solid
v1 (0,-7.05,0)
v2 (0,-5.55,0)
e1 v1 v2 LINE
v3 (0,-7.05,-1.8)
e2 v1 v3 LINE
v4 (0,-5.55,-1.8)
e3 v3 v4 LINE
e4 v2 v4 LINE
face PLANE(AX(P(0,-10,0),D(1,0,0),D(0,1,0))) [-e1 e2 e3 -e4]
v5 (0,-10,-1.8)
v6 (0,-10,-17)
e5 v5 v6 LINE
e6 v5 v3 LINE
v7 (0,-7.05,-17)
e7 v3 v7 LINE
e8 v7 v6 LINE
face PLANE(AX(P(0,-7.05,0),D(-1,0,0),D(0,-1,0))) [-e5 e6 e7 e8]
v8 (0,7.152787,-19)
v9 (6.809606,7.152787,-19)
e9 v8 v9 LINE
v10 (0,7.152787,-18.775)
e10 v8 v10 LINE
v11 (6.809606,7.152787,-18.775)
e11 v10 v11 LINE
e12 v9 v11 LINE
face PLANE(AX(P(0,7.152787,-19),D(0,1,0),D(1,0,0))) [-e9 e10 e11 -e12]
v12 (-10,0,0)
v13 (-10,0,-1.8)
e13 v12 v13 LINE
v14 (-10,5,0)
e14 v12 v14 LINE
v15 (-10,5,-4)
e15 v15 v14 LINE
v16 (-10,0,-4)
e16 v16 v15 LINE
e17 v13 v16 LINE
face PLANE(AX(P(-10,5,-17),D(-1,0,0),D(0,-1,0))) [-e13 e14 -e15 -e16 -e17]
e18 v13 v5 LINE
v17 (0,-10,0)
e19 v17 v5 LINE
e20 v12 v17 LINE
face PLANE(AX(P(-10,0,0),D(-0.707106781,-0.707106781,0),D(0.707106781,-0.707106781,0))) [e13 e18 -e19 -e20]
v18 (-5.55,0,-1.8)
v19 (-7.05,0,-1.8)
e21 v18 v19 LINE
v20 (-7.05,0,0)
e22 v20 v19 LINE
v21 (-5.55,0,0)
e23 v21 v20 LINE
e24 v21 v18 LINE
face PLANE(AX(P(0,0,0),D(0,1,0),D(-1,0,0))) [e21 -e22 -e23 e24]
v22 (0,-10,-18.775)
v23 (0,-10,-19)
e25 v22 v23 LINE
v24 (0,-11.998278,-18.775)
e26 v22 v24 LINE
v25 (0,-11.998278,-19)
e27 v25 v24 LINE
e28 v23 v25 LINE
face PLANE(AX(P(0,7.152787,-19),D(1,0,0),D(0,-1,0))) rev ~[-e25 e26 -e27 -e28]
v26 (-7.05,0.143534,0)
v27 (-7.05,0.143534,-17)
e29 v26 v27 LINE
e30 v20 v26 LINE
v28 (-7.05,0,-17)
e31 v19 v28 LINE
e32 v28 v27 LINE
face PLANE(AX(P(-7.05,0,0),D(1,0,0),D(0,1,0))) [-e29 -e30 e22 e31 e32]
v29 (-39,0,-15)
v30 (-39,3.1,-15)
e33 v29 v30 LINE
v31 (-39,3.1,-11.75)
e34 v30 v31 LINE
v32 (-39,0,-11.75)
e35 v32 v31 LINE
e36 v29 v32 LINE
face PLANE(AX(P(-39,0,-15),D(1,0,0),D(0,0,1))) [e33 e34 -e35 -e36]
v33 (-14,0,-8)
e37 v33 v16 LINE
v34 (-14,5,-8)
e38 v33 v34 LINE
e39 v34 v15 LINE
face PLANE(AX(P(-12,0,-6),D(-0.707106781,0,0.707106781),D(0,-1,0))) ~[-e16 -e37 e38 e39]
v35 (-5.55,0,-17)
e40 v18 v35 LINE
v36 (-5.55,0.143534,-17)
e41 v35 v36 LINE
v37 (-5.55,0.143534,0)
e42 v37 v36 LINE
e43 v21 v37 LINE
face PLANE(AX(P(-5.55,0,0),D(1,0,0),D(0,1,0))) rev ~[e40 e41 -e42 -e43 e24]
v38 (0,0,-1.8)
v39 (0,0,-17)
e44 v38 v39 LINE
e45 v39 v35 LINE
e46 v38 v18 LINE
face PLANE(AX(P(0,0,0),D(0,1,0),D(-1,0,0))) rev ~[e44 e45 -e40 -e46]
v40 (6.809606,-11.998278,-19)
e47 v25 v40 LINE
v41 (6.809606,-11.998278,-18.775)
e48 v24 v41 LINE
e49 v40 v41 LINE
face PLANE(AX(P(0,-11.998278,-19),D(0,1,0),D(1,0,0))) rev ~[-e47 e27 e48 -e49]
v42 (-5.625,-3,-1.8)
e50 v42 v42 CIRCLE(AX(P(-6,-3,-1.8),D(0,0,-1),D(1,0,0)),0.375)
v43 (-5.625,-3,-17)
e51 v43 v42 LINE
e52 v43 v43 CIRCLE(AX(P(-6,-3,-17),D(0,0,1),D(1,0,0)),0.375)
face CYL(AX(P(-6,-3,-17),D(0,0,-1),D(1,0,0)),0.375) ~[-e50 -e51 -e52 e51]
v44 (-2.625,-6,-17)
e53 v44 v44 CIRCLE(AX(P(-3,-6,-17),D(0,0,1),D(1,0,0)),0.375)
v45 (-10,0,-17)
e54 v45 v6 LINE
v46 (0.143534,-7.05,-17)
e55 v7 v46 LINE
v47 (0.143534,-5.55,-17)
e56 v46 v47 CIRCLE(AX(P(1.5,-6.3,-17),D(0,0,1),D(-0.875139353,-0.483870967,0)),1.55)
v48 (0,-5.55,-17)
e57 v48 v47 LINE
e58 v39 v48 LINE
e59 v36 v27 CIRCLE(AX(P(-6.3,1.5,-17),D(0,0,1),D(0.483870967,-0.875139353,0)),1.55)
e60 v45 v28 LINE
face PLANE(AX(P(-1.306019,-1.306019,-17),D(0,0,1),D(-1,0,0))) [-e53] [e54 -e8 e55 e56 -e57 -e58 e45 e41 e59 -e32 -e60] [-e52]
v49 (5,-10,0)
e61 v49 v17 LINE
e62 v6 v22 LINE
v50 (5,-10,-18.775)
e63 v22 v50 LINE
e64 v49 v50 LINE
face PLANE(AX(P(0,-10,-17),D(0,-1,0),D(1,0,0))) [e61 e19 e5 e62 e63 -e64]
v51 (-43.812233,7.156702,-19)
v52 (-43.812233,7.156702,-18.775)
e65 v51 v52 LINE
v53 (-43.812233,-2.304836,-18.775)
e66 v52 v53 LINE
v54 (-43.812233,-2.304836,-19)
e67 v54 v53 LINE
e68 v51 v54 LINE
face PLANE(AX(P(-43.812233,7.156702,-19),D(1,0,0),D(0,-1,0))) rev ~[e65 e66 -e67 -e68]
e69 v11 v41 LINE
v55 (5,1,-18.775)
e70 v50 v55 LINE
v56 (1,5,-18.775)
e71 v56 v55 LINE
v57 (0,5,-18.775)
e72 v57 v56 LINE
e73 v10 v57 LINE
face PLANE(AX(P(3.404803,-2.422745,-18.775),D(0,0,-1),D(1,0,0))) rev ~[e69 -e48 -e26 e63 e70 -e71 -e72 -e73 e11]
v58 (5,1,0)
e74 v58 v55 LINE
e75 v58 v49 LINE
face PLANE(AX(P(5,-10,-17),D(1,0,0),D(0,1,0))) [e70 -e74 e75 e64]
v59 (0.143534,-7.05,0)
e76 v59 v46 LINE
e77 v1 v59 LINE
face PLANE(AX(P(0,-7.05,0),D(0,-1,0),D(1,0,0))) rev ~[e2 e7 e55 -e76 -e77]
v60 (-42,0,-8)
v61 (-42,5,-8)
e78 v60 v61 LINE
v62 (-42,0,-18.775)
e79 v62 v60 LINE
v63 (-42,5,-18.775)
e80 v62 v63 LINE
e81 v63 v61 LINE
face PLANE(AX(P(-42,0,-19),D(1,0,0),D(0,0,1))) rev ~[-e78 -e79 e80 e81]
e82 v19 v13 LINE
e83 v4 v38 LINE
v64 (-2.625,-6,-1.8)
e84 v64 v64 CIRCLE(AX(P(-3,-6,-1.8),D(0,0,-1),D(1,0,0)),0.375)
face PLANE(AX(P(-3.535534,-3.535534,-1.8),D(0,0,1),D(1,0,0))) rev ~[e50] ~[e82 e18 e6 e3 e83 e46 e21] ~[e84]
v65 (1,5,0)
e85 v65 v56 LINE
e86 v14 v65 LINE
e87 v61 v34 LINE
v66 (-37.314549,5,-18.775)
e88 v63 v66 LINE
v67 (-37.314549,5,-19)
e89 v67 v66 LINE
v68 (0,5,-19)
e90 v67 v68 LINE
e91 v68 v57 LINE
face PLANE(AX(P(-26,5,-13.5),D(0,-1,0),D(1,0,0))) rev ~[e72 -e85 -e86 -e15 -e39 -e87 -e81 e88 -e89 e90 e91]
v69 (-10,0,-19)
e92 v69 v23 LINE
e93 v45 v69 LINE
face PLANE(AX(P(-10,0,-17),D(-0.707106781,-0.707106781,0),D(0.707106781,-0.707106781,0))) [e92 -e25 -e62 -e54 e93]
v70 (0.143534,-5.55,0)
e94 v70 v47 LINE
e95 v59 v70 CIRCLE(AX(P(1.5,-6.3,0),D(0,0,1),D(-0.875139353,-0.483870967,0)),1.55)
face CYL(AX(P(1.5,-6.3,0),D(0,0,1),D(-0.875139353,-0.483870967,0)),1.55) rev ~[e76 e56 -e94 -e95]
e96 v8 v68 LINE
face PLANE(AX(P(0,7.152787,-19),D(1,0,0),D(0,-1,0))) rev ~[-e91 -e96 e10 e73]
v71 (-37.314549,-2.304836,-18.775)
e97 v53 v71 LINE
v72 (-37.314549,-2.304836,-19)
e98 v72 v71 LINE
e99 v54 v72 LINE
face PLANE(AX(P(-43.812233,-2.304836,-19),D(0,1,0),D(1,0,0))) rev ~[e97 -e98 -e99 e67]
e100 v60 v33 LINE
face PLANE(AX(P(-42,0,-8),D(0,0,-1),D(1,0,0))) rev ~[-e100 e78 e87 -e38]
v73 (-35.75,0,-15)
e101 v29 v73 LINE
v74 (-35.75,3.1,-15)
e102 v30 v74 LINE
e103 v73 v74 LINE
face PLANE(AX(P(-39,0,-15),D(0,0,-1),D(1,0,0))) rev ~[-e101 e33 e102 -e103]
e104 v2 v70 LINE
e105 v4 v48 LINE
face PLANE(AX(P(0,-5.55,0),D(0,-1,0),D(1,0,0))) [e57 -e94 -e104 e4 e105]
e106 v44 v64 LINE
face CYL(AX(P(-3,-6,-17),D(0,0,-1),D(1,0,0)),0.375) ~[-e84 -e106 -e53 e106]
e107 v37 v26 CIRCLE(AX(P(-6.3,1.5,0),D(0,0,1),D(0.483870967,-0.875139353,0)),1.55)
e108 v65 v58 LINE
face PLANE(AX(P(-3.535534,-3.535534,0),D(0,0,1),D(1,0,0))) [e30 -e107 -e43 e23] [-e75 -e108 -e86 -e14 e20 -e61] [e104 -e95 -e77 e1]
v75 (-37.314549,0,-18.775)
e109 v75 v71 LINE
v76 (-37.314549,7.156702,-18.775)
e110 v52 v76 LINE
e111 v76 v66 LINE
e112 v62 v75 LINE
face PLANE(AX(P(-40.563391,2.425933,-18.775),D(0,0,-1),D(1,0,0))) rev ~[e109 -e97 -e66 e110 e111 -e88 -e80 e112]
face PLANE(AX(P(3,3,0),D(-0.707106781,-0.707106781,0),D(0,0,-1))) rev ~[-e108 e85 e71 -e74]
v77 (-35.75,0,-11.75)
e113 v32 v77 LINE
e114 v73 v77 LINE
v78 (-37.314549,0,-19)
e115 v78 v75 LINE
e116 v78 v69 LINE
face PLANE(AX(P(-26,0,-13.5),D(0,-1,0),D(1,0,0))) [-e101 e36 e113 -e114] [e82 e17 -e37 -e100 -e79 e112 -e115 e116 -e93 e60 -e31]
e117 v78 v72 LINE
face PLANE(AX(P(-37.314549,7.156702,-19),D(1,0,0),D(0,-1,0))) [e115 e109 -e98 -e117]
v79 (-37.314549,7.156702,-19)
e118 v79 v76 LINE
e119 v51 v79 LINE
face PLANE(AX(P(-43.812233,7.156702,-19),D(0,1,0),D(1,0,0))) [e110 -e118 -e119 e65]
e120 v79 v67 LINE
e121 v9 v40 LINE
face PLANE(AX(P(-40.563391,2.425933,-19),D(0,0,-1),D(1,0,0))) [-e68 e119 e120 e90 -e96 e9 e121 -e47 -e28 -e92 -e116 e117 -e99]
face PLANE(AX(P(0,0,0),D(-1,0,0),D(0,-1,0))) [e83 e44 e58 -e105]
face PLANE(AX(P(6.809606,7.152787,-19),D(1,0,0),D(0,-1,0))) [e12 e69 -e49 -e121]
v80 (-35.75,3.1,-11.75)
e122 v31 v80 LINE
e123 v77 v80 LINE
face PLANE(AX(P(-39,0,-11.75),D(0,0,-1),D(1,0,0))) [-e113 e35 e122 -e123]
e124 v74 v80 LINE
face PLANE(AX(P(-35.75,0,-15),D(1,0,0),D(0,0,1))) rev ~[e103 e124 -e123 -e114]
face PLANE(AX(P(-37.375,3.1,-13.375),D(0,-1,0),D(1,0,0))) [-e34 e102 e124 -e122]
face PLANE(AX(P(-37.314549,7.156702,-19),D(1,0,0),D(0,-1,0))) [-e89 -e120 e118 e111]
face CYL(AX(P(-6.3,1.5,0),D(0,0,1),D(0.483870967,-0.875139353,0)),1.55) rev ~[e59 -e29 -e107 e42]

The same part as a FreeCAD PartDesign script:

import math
import FreeCAD as App
import Part
import Sketcher
Q = App.Units.Quantity


def edges_at(feature, points):
    """Names of the edges that pass closest to the given points."""
    edges = feature.Shape.Edges
    near = lambda p: min(range(len(edges)), key=lambda i: edges[i].distToShape(Part.Vertex(*p))[0])
    return sorted({f"Edge{near(p) + 1}" for p in points})

doc = App.newDocument("Part")
body = doc.addObject("PartDesign::Body", "Body")

sketch1 = body.newObject("Sketcher::SketchObject", "Sketch")
sketch1.AttachmentSupport = (doc.getObject("XY_Plane"), [""])
sketch1.MapMode = "FlatFace"
sketch1.addGeometry([
    Part.LineSegment(App.Vector(-10, 5, 0), App.Vector(-10, 0, 0)),
    Part.LineSegment(App.Vector(-10, 0, 0), App.Vector(-7.05, 0, 0)),
    Part.LineSegment(App.Vector(-7.05, 0, 0), App.Vector(-7.05, 0.143534, 0)),
    Part.ArcOfCircle(Part.Circle(App.Vector(-6.3, 1.5, 0), App.Vector(0, 0, 1), 1.55), math.radians(-61.061472), math.radians(241.061472)),
    Part.LineSegment(App.Vector(-5.55, 0.143534, 0), App.Vector(-5.55, 0, 0)),
    Part.LineSegment(App.Vector(-5.55, 0, 0), App.Vector(0, 0, 0)),
    Part.LineSegment(App.Vector(0, 0, 0), App.Vector(0, -5.55, 0)),
    Part.LineSegment(App.Vector(0, -5.55, 0), App.Vector(0.143534, -5.55, 0)),
    Part.ArcOfCircle(Part.Circle(App.Vector(1.5, -6.3, 0), App.Vector(0, 0, 1), 1.55), math.radians(-151.061472), math.radians(151.061472)),
    Part.LineSegment(App.Vector(0.143534, -7.05, 0), App.Vector(0, -7.05, 0)),
    Part.LineSegment(App.Vector(0, -7.05, 0), App.Vector(0, -10, 0)),
    Part.LineSegment(App.Vector(0, -10, 0), App.Vector(5, -10, 0)),
    Part.LineSegment(App.Vector(5, -10, 0), App.Vector(5, 5, 0)),
    Part.LineSegment(App.Vector(5, 5, 0), App.Vector(-10, 5, 0)),
], False)
sketch1.addConstraint([
    Sketcher.Constraint("Coincident", 0, 2, 1, 1),
    Sketcher.Constraint("Coincident", 1, 2, 2, 1),
    Sketcher.Constraint("Coincident", 2, 2, 3, 2),
    Sketcher.Constraint("Coincident", 3, 1, 4, 1),
    Sketcher.Constraint("Coincident", 4, 2, 5, 1),
    Sketcher.Constraint("Coincident", 5, 2, 6, 1),
    Sketcher.Constraint("Coincident", 6, 2, 7, 1),
    Sketcher.Constraint("Coincident", 7, 2, 8, 2),
    Sketcher.Constraint("Coincident", 8, 1, 9, 1),
    Sketcher.Constraint("Coincident", 9, 2, 10, 1),
    Sketcher.Constraint("Coincident", 10, 2, 11, 1),
    Sketcher.Constraint("Coincident", 11, 2, 12, 1),
    Sketcher.Constraint("Coincident", 12, 2, 13, 1),
    Sketcher.Constraint("Coincident", 13, 2, 0, 1),
    Sketcher.Constraint("Vertical", 0),
    Sketcher.Constraint("Horizontal", 1),
    Sketcher.Constraint("Vertical", 2),
    Sketcher.Constraint("Vertical", 4),
    Sketcher.Constraint("Horizontal", 5),
    Sketcher.Constraint("Vertical", 6),
    Sketcher.Constraint("Horizontal", 7),
    Sketcher.Constraint("Horizontal", 9),
    Sketcher.Constraint("Vertical", 10),
    Sketcher.Constraint("Horizontal", 11),
    Sketcher.Constraint("Vertical", 12),
    Sketcher.Constraint("Horizontal", 13),
    Sketcher.Constraint("Coincident", 5, 2, -1, 1),
    Sketcher.Constraint("Equal", 3, 8),
    Sketcher.Constraint("PointOnObject", 0, 2, -1),
    Sketcher.Constraint("PointOnObject", 9, 2, -2),
    Sketcher.Constraint("Horizontal", 2, 2, 3, 1),
    Sketcher.Constraint("Vertical", 7, 2, 8, 1),
    Sketcher.Constraint("Equal", 11, 0),
    Sketcher.Constraint("Equal", 9, 2),
    Sketcher.Constraint("Equal", 5, 6),
    Sketcher.Constraint("Equal", 1, 10),
    Sketcher.Constraint("Equal", 13, 12),
    Sketcher.Constraint("DistanceX", 11, 1, 11, 2, Q("5 mm")),
    Sketcher.Constraint("DistanceX", 13, 2, 13, 1, Q("15 mm")),
    Sketcher.Constraint("Radius", 3, Q("1.55 mm")),
    Sketcher.Constraint("DistanceX", 1, 1, 1, 2, Q("2.95 mm")),
    Sketcher.Constraint("DistanceX", 5, 1, 5, 2, Q("5.55 mm")),
    Sketcher.Constraint("DistanceY", -1, 1, 3, 3, Q("1.5 mm")),
])
pad1 = body.newObject("PartDesign::Pad", "Pad")
pad1.Profile = sketch1
pad1.Length = 17
pad1.Reversed = True

sketch2 = body.newObject("Sketcher::SketchObject", "Sketch001")
sketch2.AttachmentSupport = (doc.getObject("XY_Plane"), [""])
sketch2.MapMode = "FlatFace"
sketch2.AttachmentOffset = App.Placement(App.Vector(0, 0, -17), App.Rotation())
sketch2.addGeometry([
    Part.LineSegment(App.Vector(-10, 5, 0), App.Vector(5, 5, 0)),
    Part.LineSegment(App.Vector(5, 5, 0), App.Vector(5, -10, 0)),
    Part.LineSegment(App.Vector(5, -10, 0), App.Vector(0, -10, 0)),
    Part.LineSegment(App.Vector(0, -10, 0), App.Vector(-10, 0, 0)),
    Part.LineSegment(App.Vector(-10, 0, 0), App.Vector(-10, 5, 0)),
], False)
sketch2.addConstraint([
    Sketcher.Constraint("Coincident", 0, 2, 1, 1),
    Sketcher.Constraint("Coincident", 1, 2, 2, 1),
    Sketcher.Constraint("Coincident", 2, 2, 3, 1),
    Sketcher.Constraint("Coincident", 3, 2, 4, 1),
    Sketcher.Constraint("Coincident", 4, 2, 0, 1),
    Sketcher.Constraint("Horizontal", 0),
    Sketcher.Constraint("Vertical", 1),
    Sketcher.Constraint("Horizontal", 2),
    Sketcher.Constraint("Vertical", 4),
    Sketcher.Constraint("PointOnObject", 2, 2, -2),
    Sketcher.Constraint("PointOnObject", 3, 2, -1),
    Sketcher.Constraint("Equal", 0, 1),
    Sketcher.Constraint("Equal", 2, 4),
    Sketcher.Constraint("DistanceX", 0, 1, 0, 2, Q("15 mm")),
    Sketcher.Constraint("DistanceX", 2, 2, 2, 1, Q("5 mm")),
])
pad2 = body.newObject("PartDesign::Pad", "Pad001")
pad2.Profile = sketch2
pad2.Length = 2
pad2.Reversed = True

sketch3 = body.newObject("Sketcher::SketchObject", "Sketch002")
sketch3.AttachmentSupport = (doc.getObject("XY_Plane"), [""])
sketch3.MapMode = "FlatFace"
sketch3.addGeometry([
    Part.LineSegment(App.Vector(0, -10, 0), App.Vector(0, 0, 0)),
    Part.LineSegment(App.Vector(0, 0, 0), App.Vector(-10, 0, 0)),
    Part.LineSegment(App.Vector(-10, 0, 0), App.Vector(0, -10, 0)),
], False)
sketch3.addConstraint([
    Sketcher.Constraint("Coincident", 0, 2, 1, 1),
    Sketcher.Constraint("Coincident", 1, 2, 2, 1),
    Sketcher.Constraint("Coincident", 2, 2, 0, 1),
    Sketcher.Constraint("Vertical", 0),
    Sketcher.Constraint("Horizontal", 1),
    Sketcher.Constraint("Coincident", 0, 2, -1, 1),
    Sketcher.Constraint("Equal", 1, 0),
    Sketcher.Constraint("DistanceX", 1, 2, 1, 1, Q("10 mm")),
])
pad3 = body.newObject("PartDesign::Pad", "Pad002")
pad3.Profile = sketch3
pad3.Length = 1.8
pad3.Reversed = True

sketch4 = body.newObject("Sketcher::SketchObject", "Sketch003")
sketch4.AttachmentSupport = (doc.getObject("XZ_Plane"), [""])
sketch4.MapMode = "FlatFace"
sketch4.addGeometry([
    Part.LineSegment(App.Vector(-42, -8, 0), App.Vector(-42, -19, 0)),
    Part.LineSegment(App.Vector(-42, -19, 0), App.Vector(-10, -19, 0)),
    Part.LineSegment(App.Vector(-10, -19, 0), App.Vector(-10, -8, 0)),
    Part.LineSegment(App.Vector(-10, -8, 0), App.Vector(-42, -8, 0)),
], False)
sketch4.addConstraint([
    Sketcher.Constraint("Coincident", 0, 2, 1, 1),
    Sketcher.Constraint("Coincident", 1, 2, 2, 1),
    Sketcher.Constraint("Coincident", 2, 2, 3, 1),
    Sketcher.Constraint("Coincident", 3, 2, 0, 1),
    Sketcher.Constraint("Vertical", 0),
    Sketcher.Constraint("Horizontal", 1),
    Sketcher.Constraint("Vertical", 2),
    Sketcher.Constraint("Horizontal", 3),
    Sketcher.Constraint("DistanceX", 1, 1, 1, 2, Q("32 mm")),
    Sketcher.Constraint("DistanceY", 0, 2, 0, 1, Q("11 mm")),
    Sketcher.Constraint("DistanceX", 0, 2, -1, 1, Q("42 mm")),
    Sketcher.Constraint("DistanceY", 0, 2, -1, 1, Q("19 mm")),
])
pad4 = body.newObject("PartDesign::Pad", "Pad003")
pad4.Profile = sketch4
pad4.Length = 5
pad4.Reversed = True

sketch5 = body.newObject("Sketcher::SketchObject", "Sketch004")
sketch5.AttachmentSupport = (doc.getObject("XZ_Plane"), [""])
sketch5.MapMode = "FlatFace"
sketch5.addGeometry([
    Part.LineSegment(App.Vector(-39, -11.75, 0), App.Vector(-39, -15, 0)),
    Part.LineSegment(App.Vector(-39, -15, 0), App.Vector(-35.75, -15, 0)),
    Part.LineSegment(App.Vector(-35.75, -15, 0), App.Vector(-35.75, -11.75, 0)),
    Part.LineSegment(App.Vector(-35.75, -11.75, 0), App.Vector(-39, -11.75, 0)),
], False)
sketch5.addConstraint([
    Sketcher.Constraint("Coincident", 0, 2, 1, 1),
    Sketcher.Constraint("Coincident", 1, 2, 2, 1),
    Sketcher.Constraint("Coincident", 2, 2, 3, 1),
    Sketcher.Constraint("Coincident", 3, 2, 0, 1),
    Sketcher.Constraint("Vertical", 0),
    Sketcher.Constraint("Horizontal", 1),
    Sketcher.Constraint("Vertical", 2),
    Sketcher.Constraint("Horizontal", 3),
    Sketcher.Constraint("Equal", 3, 0),
    Sketcher.Constraint("DistanceX", 0, 2, -1, 1, Q("39 mm")),
    Sketcher.Constraint("DistanceY", 0, 2, -1, 1, Q("15 mm")),
    Sketcher.Constraint("DistanceX", 1, 1, 1, 2, Q("3.25 mm")),
])
pocket1 = body.newObject("PartDesign::Pocket", "Pocket")
pocket1.Profile = sketch5
pocket1.Length = 3.1

sketch6 = body.newObject("Sketcher::SketchObject", "Sketch005")
sketch6.AttachmentSupport = (doc.getObject("XY_Plane"), [""])
sketch6.MapMode = "FlatFace"
sketch6.AttachmentOffset = App.Placement(App.Vector(0, 0, -19), App.Rotation())
sketch6.addGeometry([
    Part.LineSegment(App.Vector(-43.812233, -2.304836, 0), App.Vector(-43.812233, 7.156702, 0)),
    Part.LineSegment(App.Vector(-43.812233, 7.156702, 0), App.Vector(-37.314549, 7.156702, 0)),
    Part.LineSegment(App.Vector(-37.314549, 7.156702, 0), App.Vector(-37.314549, -2.304836, 0)),
    Part.LineSegment(App.Vector(-37.314549, -2.304836, 0), App.Vector(-43.812233, -2.304836, 0)),
    Part.LineSegment(App.Vector(0, -11.998278, 0), App.Vector(0, 7.152787, 0)),
    Part.LineSegment(App.Vector(0, 7.152787, 0), App.Vector(6.809606, 7.152787, 0)),
    Part.LineSegment(App.Vector(6.809606, 7.152787, 0), App.Vector(6.809606, -11.998278, 0)),
    Part.LineSegment(App.Vector(6.809606, -11.998278, 0), App.Vector(0, -11.998278, 0)),
], False)
sketch6.addConstraint([
    Sketcher.Constraint("Coincident", 0, 2, 1, 1),
    Sketcher.Constraint("Coincident", 1, 2, 2, 1),
    Sketcher.Constraint("Coincident", 2, 2, 3, 1),
    Sketcher.Constraint("Coincident", 3, 2, 0, 1),
    Sketcher.Constraint("Coincident", 4, 2, 5, 1),
    Sketcher.Constraint("Coincident", 5, 2, 6, 1),
    Sketcher.Constraint("Coincident", 6, 2, 7, 1),
    Sketcher.Constraint("Coincident", 7, 2, 4, 1),
    Sketcher.Constraint("Vertical", 0),
    Sketcher.Constraint("Horizontal", 1),
    Sketcher.Constraint("Vertical", 2),
    Sketcher.Constraint("Horizontal", 3),
    Sketcher.Constraint("Vertical", 4),
    Sketcher.Constraint("Horizontal", 5),
    Sketcher.Constraint("Vertical", 6),
    Sketcher.Constraint("Horizontal", 7),
    Sketcher.Constraint("PointOnObject", 4, 2, -2),
    Sketcher.Constraint("DistanceY", 0, 1, 0, 2, Q("9.461539 mm")),
    Sketcher.Constraint("DistanceX", 1, 1, 1, 2, Q("6.497684 mm")),
    Sketcher.Constraint("DistanceX", 5, 1, 5, 2, Q("6.809606 mm")),
    Sketcher.Constraint("DistanceY", 4, 1, 4, 2, Q("19.151065 mm")),
    Sketcher.Constraint("DistanceX", 1, 2, -1, 1, Q("37.314549 mm")),
    Sketcher.Constraint("DistanceY", 6, 2, 2, 2, Q("9.693441 mm")),
    Sketcher.Constraint("DistanceY", -1, 1, 0, 2, Q("7.156702 mm")),
])
pad5 = body.newObject("PartDesign::Pad", "Pad004")
pad5.Profile = sketch6
pad5.Length = 0.225
doc.recompute()

chamfer = body.newObject("PartDesign::Chamfer", "Chamfer")
chamfer.Base = (pad5, edges_at(pad5, [(-10, 2.5, -8), (5, 5, -9.387)]))
chamfer.Size = 4

sketch7 = body.newObject("Sketcher::SketchObject", "Sketch006")
sketch7.AttachmentSupport = (doc.getObject("XY_Plane"), [""])
sketch7.MapMode = "FlatFace"
sketch7.AttachmentOffset = App.Placement(App.Vector(0, 0, -17), App.Rotation())
sketch7.addGeometry([
    Part.Circle(App.Vector(-6, -3, 0), App.Vector(0, 0, 1), 0.375),
    Part.Circle(App.Vector(-3, -6, 0), App.Vector(0, 0, 1), 0.375),
], False)
sketch7.addConstraint([
    Sketcher.Constraint("Equal", 0, 1),
    Sketcher.Constraint("Diameter", 0, Q("0.75 mm")),
    Sketcher.Constraint("DistanceX", 0, 3, -1, 1, Q("6 mm")),
    Sketcher.Constraint("DistanceY", 0, 3, -1, 1, Q("3 mm")),
    Sketcher.Constraint("DistanceX", 1, 3, -1, 1, Q("3 mm")),
    Sketcher.Constraint("DistanceY", 1, 3, -1, 1, Q("6 mm")),
])
pad6 = body.newObject("PartDesign::Pad", "Pad005")
pad6.Profile = sketch7
pad6.Length = 16

doc.recompute()
